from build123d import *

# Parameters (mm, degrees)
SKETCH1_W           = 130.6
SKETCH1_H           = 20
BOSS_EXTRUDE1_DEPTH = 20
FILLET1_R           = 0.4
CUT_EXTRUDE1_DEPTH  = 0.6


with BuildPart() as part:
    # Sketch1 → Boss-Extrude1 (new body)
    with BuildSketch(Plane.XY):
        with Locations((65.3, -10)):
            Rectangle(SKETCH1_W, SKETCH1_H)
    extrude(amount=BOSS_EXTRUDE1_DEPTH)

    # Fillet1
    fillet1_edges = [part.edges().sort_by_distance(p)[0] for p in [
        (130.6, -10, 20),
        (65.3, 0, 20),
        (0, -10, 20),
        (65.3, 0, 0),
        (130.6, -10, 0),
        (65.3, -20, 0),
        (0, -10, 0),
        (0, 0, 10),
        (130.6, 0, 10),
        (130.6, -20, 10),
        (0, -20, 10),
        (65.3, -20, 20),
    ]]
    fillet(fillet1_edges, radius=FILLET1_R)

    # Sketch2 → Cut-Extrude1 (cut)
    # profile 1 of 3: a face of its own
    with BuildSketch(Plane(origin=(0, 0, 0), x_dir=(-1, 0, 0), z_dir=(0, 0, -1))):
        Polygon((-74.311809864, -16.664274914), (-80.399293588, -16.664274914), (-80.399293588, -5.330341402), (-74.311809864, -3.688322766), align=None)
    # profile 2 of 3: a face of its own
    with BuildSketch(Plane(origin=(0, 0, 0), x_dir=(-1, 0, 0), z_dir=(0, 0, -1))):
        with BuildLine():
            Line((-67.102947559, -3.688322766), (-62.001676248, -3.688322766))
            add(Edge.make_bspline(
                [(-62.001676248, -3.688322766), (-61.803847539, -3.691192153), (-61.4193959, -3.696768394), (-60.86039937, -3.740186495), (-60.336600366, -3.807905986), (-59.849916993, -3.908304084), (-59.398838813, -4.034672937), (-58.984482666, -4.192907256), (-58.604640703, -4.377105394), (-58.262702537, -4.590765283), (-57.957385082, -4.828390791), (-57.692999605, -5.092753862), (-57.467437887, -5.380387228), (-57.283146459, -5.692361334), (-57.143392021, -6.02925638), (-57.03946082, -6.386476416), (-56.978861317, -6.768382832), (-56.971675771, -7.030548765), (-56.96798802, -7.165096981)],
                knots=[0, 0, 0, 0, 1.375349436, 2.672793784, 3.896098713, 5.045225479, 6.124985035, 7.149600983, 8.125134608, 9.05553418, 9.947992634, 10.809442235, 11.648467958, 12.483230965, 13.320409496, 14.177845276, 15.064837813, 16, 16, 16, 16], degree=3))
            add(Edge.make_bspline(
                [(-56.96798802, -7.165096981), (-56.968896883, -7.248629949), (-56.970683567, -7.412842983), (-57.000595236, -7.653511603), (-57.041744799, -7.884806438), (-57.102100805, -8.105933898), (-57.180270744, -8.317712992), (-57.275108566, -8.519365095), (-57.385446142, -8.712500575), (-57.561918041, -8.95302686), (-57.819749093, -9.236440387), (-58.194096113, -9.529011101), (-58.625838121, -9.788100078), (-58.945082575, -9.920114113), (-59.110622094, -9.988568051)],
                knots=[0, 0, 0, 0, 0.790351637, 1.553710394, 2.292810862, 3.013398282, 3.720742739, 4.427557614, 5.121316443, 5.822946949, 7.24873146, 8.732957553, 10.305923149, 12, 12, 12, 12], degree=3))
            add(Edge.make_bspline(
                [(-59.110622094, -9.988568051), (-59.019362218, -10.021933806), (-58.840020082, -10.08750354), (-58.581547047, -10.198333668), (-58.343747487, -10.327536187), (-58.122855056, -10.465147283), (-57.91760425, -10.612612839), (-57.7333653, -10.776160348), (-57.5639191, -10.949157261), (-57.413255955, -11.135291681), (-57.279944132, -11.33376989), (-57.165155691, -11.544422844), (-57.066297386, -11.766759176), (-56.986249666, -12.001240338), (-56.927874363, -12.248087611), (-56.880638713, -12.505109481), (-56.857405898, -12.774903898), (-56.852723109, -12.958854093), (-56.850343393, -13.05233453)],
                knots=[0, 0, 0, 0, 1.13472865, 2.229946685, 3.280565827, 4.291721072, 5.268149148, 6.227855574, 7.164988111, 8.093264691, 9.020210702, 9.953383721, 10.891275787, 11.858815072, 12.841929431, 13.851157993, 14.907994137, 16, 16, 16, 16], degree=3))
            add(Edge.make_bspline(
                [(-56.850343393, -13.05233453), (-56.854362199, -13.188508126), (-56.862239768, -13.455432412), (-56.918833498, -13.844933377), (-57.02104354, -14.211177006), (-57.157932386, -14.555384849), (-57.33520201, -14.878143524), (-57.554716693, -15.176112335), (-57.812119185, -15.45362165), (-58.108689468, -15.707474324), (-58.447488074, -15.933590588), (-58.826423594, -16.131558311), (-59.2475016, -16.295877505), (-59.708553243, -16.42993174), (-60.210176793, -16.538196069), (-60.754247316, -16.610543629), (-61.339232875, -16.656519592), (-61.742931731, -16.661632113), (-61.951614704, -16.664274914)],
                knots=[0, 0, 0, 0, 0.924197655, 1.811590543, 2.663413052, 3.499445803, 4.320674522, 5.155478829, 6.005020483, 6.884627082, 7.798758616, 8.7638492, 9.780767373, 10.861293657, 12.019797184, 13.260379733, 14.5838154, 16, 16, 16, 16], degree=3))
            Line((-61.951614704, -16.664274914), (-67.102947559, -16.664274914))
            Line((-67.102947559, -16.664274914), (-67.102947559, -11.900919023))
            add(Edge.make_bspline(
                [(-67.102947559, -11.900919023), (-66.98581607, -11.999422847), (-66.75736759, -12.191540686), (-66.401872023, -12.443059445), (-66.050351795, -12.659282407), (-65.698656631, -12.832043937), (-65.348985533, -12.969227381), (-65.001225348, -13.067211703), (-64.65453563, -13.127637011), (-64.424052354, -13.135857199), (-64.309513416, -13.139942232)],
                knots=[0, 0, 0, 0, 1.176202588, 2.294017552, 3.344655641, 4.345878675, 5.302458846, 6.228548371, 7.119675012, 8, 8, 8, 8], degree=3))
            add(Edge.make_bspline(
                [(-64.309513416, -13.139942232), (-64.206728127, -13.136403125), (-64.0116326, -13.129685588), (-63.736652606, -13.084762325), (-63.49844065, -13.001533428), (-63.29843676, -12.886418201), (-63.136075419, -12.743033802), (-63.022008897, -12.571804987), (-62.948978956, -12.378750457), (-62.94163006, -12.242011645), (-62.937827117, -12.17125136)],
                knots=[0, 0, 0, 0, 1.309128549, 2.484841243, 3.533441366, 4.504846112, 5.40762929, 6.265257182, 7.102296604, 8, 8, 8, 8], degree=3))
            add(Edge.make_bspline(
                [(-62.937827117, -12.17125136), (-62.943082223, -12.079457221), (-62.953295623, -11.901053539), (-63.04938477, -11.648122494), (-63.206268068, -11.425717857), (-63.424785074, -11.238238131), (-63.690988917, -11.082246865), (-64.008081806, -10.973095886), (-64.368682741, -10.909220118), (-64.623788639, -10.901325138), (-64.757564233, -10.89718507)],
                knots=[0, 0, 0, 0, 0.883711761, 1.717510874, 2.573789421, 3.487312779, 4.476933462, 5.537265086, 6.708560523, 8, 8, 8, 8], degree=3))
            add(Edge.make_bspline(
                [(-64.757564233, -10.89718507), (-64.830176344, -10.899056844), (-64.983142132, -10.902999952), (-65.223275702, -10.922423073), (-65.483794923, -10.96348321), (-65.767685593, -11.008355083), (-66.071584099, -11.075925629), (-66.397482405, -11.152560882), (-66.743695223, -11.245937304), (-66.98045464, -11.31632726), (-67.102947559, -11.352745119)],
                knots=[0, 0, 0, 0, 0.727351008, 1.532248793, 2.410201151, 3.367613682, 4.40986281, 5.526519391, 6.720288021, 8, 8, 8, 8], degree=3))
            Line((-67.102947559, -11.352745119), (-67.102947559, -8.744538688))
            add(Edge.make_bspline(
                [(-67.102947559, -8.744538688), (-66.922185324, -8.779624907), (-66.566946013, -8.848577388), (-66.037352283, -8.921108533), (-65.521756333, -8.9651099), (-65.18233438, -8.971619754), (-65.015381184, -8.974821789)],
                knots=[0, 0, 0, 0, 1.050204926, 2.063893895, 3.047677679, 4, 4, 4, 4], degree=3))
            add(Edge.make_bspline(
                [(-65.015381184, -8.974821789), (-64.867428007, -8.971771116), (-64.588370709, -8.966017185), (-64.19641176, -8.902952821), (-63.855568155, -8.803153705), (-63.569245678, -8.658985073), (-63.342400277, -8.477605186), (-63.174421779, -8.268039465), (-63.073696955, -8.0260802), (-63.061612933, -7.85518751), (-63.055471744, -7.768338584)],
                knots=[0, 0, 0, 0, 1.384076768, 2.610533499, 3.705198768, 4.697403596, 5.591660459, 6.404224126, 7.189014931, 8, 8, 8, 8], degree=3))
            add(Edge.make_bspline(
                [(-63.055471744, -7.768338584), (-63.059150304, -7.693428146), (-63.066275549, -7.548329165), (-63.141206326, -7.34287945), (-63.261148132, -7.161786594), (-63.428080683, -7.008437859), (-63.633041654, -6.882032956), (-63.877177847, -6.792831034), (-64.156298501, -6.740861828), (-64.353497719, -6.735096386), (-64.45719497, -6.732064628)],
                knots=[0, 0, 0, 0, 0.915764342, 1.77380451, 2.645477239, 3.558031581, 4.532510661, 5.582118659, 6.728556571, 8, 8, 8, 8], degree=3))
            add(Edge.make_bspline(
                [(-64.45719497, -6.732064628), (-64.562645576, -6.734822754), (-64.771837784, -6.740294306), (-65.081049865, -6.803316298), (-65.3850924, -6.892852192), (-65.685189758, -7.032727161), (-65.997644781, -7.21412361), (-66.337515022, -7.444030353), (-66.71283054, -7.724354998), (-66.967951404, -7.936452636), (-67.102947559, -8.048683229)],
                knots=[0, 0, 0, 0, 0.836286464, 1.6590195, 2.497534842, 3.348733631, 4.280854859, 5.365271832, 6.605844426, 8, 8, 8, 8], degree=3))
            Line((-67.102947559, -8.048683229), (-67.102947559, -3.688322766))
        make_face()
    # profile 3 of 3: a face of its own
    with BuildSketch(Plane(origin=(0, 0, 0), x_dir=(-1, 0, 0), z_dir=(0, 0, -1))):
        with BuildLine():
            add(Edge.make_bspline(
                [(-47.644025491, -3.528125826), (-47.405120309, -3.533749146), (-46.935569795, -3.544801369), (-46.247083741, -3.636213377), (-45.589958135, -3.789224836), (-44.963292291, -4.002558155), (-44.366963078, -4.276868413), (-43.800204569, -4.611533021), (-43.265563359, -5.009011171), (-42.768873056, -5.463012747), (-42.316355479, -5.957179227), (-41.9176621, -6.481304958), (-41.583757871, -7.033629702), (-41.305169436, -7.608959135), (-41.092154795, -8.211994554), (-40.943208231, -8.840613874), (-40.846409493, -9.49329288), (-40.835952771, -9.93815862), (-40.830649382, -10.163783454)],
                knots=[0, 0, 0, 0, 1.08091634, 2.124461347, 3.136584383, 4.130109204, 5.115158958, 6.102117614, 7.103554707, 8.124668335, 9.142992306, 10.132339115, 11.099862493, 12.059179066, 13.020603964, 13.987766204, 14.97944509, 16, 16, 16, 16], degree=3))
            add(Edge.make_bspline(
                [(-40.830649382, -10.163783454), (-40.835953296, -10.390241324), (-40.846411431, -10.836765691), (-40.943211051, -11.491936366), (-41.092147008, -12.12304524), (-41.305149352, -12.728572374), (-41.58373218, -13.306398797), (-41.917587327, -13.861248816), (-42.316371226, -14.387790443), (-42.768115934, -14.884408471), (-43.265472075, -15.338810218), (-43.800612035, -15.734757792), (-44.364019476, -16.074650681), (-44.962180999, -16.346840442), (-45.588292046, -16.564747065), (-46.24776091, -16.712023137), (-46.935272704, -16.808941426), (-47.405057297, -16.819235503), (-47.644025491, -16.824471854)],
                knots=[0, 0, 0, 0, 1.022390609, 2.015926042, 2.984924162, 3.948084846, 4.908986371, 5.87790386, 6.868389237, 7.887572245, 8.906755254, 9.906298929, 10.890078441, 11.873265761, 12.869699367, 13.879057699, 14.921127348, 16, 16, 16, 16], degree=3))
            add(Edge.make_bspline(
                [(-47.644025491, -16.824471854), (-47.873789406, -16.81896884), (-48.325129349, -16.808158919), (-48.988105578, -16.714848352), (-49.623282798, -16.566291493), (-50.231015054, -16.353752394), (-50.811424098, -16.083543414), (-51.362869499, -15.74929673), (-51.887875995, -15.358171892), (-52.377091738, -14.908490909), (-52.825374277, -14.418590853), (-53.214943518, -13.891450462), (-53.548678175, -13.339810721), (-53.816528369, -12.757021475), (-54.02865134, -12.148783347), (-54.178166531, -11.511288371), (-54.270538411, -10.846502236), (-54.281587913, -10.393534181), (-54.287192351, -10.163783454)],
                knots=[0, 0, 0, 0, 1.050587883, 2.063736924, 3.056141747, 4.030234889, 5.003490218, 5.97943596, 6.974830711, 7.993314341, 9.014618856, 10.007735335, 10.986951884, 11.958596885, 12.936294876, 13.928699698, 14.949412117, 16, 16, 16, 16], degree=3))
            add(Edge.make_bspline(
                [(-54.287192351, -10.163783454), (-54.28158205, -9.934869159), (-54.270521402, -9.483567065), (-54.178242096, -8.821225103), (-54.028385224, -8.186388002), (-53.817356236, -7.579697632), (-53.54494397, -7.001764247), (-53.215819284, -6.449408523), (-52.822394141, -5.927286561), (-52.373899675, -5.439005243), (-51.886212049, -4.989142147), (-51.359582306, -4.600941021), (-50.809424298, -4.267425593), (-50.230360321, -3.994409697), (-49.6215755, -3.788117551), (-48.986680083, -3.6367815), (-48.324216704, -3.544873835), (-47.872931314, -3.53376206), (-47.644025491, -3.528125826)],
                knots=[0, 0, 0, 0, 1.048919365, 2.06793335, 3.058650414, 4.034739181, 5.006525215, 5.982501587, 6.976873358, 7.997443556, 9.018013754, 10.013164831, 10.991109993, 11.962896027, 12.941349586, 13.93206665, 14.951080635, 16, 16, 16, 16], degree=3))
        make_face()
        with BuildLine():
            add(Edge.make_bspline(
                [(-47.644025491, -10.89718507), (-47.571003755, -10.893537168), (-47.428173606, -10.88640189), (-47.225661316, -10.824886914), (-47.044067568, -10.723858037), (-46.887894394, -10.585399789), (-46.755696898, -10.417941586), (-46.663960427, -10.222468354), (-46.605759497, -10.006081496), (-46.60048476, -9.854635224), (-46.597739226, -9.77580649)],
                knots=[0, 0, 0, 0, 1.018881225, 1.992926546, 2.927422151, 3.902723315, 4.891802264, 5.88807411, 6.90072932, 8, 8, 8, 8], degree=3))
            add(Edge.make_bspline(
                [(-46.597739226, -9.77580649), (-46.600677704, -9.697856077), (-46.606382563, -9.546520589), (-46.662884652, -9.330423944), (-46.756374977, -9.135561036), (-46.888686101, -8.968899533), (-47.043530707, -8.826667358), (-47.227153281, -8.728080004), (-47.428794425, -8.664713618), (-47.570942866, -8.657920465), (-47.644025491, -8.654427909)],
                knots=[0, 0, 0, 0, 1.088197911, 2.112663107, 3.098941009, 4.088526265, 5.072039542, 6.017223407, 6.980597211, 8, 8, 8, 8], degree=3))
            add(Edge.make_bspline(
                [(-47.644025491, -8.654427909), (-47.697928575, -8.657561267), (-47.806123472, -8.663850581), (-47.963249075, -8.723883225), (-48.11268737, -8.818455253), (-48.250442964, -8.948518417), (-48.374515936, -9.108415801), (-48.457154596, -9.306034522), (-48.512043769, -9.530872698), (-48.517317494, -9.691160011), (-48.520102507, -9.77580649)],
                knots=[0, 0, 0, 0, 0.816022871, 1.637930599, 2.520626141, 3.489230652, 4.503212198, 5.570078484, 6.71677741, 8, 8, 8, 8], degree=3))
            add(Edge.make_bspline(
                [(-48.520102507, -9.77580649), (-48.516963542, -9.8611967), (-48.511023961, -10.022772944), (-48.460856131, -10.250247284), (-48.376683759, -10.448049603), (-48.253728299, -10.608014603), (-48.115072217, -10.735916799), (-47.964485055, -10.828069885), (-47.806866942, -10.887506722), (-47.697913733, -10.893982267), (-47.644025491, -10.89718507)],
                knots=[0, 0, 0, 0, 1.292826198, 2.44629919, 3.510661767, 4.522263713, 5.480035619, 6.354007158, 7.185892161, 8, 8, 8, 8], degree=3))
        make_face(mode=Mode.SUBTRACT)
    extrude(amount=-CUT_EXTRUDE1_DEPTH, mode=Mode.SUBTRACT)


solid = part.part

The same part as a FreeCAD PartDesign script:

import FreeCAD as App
import Part
import Sketcher
from FreeCAD import Vector
Q = App.Units.Quantity

doc = App.newDocument("Part")
params = doc.addObject("Spreadsheet::Sheet", "Params")
for row, (alias, value) in enumerate([
    ("sketch1_height", "20 mm"),
    ("sketch1_width", "130.6 mm"),
    ("pad1_length", "20 mm"),
    ("fillet_radius", "0.4 mm"),
    ("pocket1_length", "0.6 mm"),
], start=1):
    params.set(f"A{row}", alias)
    params.set(f"B{row}", "=" + value)
    params.setAlias(f"B{row}", alias)

body = doc.addObject("PartDesign::Body", "Body")

sketch1 = body.newObject("Sketcher::SketchObject", "Sketch")
sketch1.AttachmentSupport = (doc.getObject("XY_Plane"), [""])
sketch1.MapMode = "FlatFace"
sketch1.addGeometry(Part.LineSegment(Vector(0, 0, 0), Vector(0, -20, 0)), False)
sketch1.addGeometry(Part.LineSegment(Vector(0, -20, 0), Vector(131, -20, 0)), False)
sketch1.addGeometry(Part.LineSegment(Vector(131, -20, 0), Vector(131, 0, 0)), False)
sketch1.addGeometry(Part.LineSegment(Vector(131, 0, 0), Vector(0, 0, 0)), False)
sketch1.addConstraint(Sketcher.Constraint("Coincident", 0, 2, 1, 1))
sketch1.addConstraint(Sketcher.Constraint("Coincident", 1, 2, 2, 1))
sketch1.addConstraint(Sketcher.Constraint("Coincident", 2, 2, 3, 1))
sketch1.addConstraint(Sketcher.Constraint("Coincident", 3, 2, 0, 1))
sketch1.addConstraint(Sketcher.Constraint("Vertical", 0))
sketch1.addConstraint(Sketcher.Constraint("Horizontal", 1))
sketch1.addConstraint(Sketcher.Constraint("Vertical", 2))
sketch1.addConstraint(Sketcher.Constraint("Horizontal", 3))
sketch1.addConstraint(Sketcher.Constraint("Coincident", 3, 2, -1, 1))
sketch1.addConstraint(Sketcher.Constraint("DistanceY", 0, 2, 0, 1, Q("20 mm")))
sketch1.addConstraint(Sketcher.Constraint("DistanceX", 1, 1, 1, 2, Q("130.6 mm")))
sketch1.setExpression("Constraints[9]", "Params.sketch1_height")
sketch1.setExpression("Constraints[10]", "Params.sketch1_width")
pad1 = body.newObject("PartDesign::Pad", "Pad")
pad1.Profile = sketch1
pad1.setExpression("Length", "Params.pad1_length")
doc.recompute()

fillet = body.newObject("PartDesign::Fillet", "Fillet")
fillet.Base = (pad1, ["Edge1"])
fillet.UseAllEdges = True
fillet.setExpression("Radius", "Params.fillet_radius")

sketch2 = body.newObject("Sketcher::SketchObject", "Sketch001")
sketch2.AttachmentSupport = (doc.getObject("XY_Plane"), [""])
sketch2.MapMode = "FlatFace"
sketch2.addGeometry(Part.LineSegment(Vector(80.399294, -16.664275, 0), Vector(74.31181, -16.664275, 0)), False)
sketch2.addGeometry(Part.LineSegment(Vector(74.31181, -16.664275, 0), Vector(74.31181, -3.688323, 0)), False)
sketch2.addGeometry(Part.LineSegment(Vector(74.31181, -3.688323, 0), Vector(80.399294, -5.330341, 0)), False)
sketch2.addGeometry(Part.LineSegment(Vector(80.399294, -5.330341, 0), Vector(80.399294, -16.664275, 0)), False)
sketch2.addGeometry(Part.LineSegment(Vector(62.001676, -3.688323, 0), Vector(67.102948, -3.688323, 0)), False)
sketch2.addGeometry(Part.LineSegment(Vector(67.102948, -3.688323, 0), Vector(67.102948, -8.048683, 0)), False)
sketch2.addGeometry(Part.BSplineCurve([Vector(64.457195, -6.732065, 0), Vector(64.562646, -6.734823, 0), Vector(64.771838, -6.740294, 0), Vector(65.08105, -6.803316, 0), Vector(65.385092, -6.892852, 0), Vector(65.68519, -7.032727, 0), Vector(65.997645, -7.214124, 0), Vector(66.337515, -7.44403, 0), Vector(66.712831, -7.724355, 0), Vector(66.967951, -7.936453, 0), Vector(67.102948, -8.048683, 0)], [4, 1, 1, 1, 1, 1, 1, 1, 4], [0, 0.836286464, 1.6590195, 2.497534842, 3.348733631, 4.280854859, 5.365271832, 6.605844426, 8], False, 3, [1, 1, 1, 1, 1, 1, 1, 1, 1, 1, 1], False), False)
sketch2.addGeometry(Part.BSplineCurve([Vector(63.055472, -7.768339, 0), Vector(63.05915, -7.693428, 0), Vector(63.066276, -7.548329, 0), Vector(63.141206, -7.342879, 0), Vector(63.261148, -7.161787, 0), Vector(63.428081, -7.008438, 0), Vector(63.633042, -6.882033, 0), Vector(63.877178, -6.792831, 0), Vector(64.156299, -6.740862, 0), Vector(64.353498, -6.735096, 0), Vector(64.457195, -6.732065, 0)], [4, 1, 1, 1, 1, 1, 1, 1, 4], [0, 0.915764342, 1.77380451, 2.645477239, 3.558031581, 4.532510661, 5.582118659, 6.728556571, 8], False, 3, [1, 1, 1, 1, 1, 1, 1, 1, 1, 1, 1], False), False)
sketch2.addGeometry(Part.BSplineCurve([Vector(65.015381, -8.974822, 0), Vector(64.867428, -8.971771, 0), Vector(64.588371, -8.966017, 0), Vector(64.196412, -8.902953, 0), Vector(63.855568, -8.803154, 0), Vector(63.569246, -8.658985, 0), Vector(63.3424, -8.477605, 0), Vector(63.174422, -8.268039, 0), Vector(63.073697, -8.02608, 0), Vector(63.061613, -7.855188, 0), Vector(63.055472, -7.768339, 0)], [4, 1, 1, 1, 1, 1, 1, 1, 4], [0, 1.384076768, 2.610533499, 3.705198768, 4.697403596, 5.591660459, 6.404224126, 7.189014931, 8], False, 3, [1, 1, 1, 1, 1, 1, 1, 1, 1, 1, 1], False), False)
sketch2.addGeometry(Part.BSplineCurve([Vector(67.102948, -8.744539, 0), Vector(66.922185, -8.779625, 0), Vector(66.566946, -8.848577, 0), Vector(66.037352, -8.921109, 0), Vector(65.521756, -8.96511, 0), Vector(65.182334, -8.97162, 0), Vector(65.015381, -8.974822, 0)], [4, 1, 1, 1, 4], [0, 1.050204926, 2.063893895, 3.047677679, 4], False, 3, [1, 1, 1, 1, 1, 1, 1], False), False)
sketch2.addGeometry(Part.LineSegment(Vector(67.102948, -8.744539, 0), Vector(67.102948, -11.352745, 0)), False)
sketch2.addGeometry(Part.BSplineCurve([Vector(64.757564, -10.897185, 0), Vector(64.830176, -10.899057, 0), Vector(64.983142, -10.903, 0), Vector(65.223276, -10.922423, 0), Vector(65.483795, -10.963483, 0), Vector(65.767686, -11.008355, 0), Vector(66.071584, -11.075926, 0), Vector(66.397482, -11.152561, 0), Vector(66.743695, -11.245937, 0), Vector(66.980455, -11.316327, 0), Vector(67.102948, -11.352745, 0)], [4, 1, 1, 1, 1, 1, 1, 1, 4], [0, 0.727351008, 1.532248793, 2.410201151, 3.367613682, 4.40986281, 5.526519391, 6.720288021, 8], False, 3, [1, 1, 1, 1, 1, 1, 1, 1, 1, 1, 1], False), False)
sketch2.addGeometry(Part.BSplineCurve([Vector(62.937827, -12.171251, 0), Vector(62.943082, -12.079457, 0), Vector(62.953296, -11.901054, 0), Vector(63.049385, -11.648122, 0), Vector(63.206268, -11.425718, 0), Vector(63.424785, -11.238238, 0), Vector(63.690989, -11.082247, 0), Vector(64.008082, -10.973096, 0), Vector(64.368683, -10.90922, 0), Vector(64.623789, -10.901325, 0), Vector(64.757564, -10.897185, 0)], [4, 1, 1, 1, 1, 1, 1, 1, 4], [0, 0.883711761, 1.717510874, 2.573789421, 3.487312779, 4.476933462, 5.537265086, 6.708560523, 8], False, 3, [1, 1, 1, 1, 1, 1, 1, 1, 1, 1, 1], False), False)
sketch2.addGeometry(Part.BSplineCurve([Vector(64.309513, -13.139942, 0), Vector(64.206728, -13.136403, 0), Vector(64.011633, -13.129686, 0), Vector(63.736653, -13.084762, 0), Vector(63.498441, -13.001533, 0), Vector(63.298437, -12.886418, 0), Vector(63.136075, -12.743034, 0), Vector(63.022009, -12.571805, 0), Vector(62.948979, -12.37875, 0), Vector(62.94163, -12.242012, 0), Vector(62.937827, -12.171251, 0)], [4, 1, 1, 1, 1, 1, 1, 1, 4], [0, 1.309128549, 2.484841243, 3.533441366, 4.504846112, 5.40762929, 6.265257182, 7.102296604, 8], False, 3, [1, 1, 1, 1, 1, 1, 1, 1, 1, 1, 1], False), False)
sketch2.addGeometry(Part.BSplineCurve([Vector(67.102948, -11.900919, 0), Vector(66.985816, -11.999423, 0), Vector(66.757368, -12.191541, 0), Vector(66.401872, -12.443059, 0), Vector(66.050352, -12.659282, 0), Vector(65.698657, -12.832044, 0), Vector(65.348986, -12.969227, 0), Vector(65.001225, -13.067212, 0), Vector(64.654536, -13.127637, 0), Vector(64.424052, -13.135857, 0), Vector(64.309513, -13.139942, 0)], [4, 1, 1, 1, 1, 1, 1, 1, 4], [0, 1.176202588, 2.294017552, 3.344655641, 4.345878675, 5.302458846, 6.228548371, 7.119675012, 8], False, 3, [1, 1, 1, 1, 1, 1, 1, 1, 1, 1, 1], False), False)
sketch2.addGeometry(Part.LineSegment(Vector(67.102948, -11.900919, 0), Vector(67.102948, -16.664275, 0)), False)
sketch2.addGeometry(Part.LineSegment(Vector(67.102948, -16.664275, 0), Vector(61.951615, -16.664275, 0)), False)
sketch2.addGeometry(Part.BSplineCurve([Vector(56.850343, -13.052335, 0), Vector(56.854362, -13.188508, 0), Vector(56.86224, -13.455432, 0), Vector(56.918833, -13.844933, 0), Vector(57.021044, -14.211177, 0), Vector(57.157932, -14.555385, 0), Vector(57.335202, -14.878144, 0), Vector(57.554717, -15.176112, 0), Vector(57.812119, -15.453622, 0), Vector(58.108689, -15.707474, 0), Vector(58.447488, -15.933591, 0), Vector(58.826424, -16.131558, 0), Vector(59.247502, -16.295878, 0), Vector(59.708553, -16.429932, 0), Vector(60.210177, -16.538196, 0), Vector(60.754247, -16.610544, 0), Vector(61.339233, -16.65652, 0), Vector(61.742932, -16.661632, 0), Vector(61.951615, -16.664275, 0)], [4, 1, 1, 1, 1, 1, 1, 1, 1, 1, 1, 1, 1, 1, 1, 1, 4], [0, 0.924197655, 1.811590543, 2.663413052, 3.499445803, 4.320674522, 5.155478829, 6.005020483, 6.884627082, 7.798758616, 8.7638492, 9.780767373, 10.861293657, 12.019797184, 13.260379733, 14.5838154, 16], False, 3, [1, 1, 1, 1, 1, 1, 1, 1, 1, 1, 1, 1, 1, 1, 1, 1, 1, 1, 1], False), False)
sketch2.addGeometry(Part.BSplineCurve([Vector(59.110622, -9.988568, 0), Vector(59.019362, -10.021934, 0), Vector(58.84002, -10.087504, 0), Vector(58.581547, -10.198334, 0), Vector(58.343747, -10.327536, 0), Vector(58.122855, -10.465147, 0), Vector(57.917604, -10.612613, 0), Vector(57.733365, -10.77616, 0), Vector(57.563919, -10.949157, 0), Vector(57.413256, -11.135292, 0), Vector(57.279944, -11.33377, 0), Vector(57.165156, -11.544423, 0), Vector(57.066297, -11.766759, 0), Vector(56.98625, -12.00124, 0), Vector(56.927874, -12.248088, 0), Vector(56.880639, -12.505109, 0), Vector(56.857406, -12.774904, 0), Vector(56.852723, -12.958854, 0), Vector(56.850343, -13.052335, 0)], [4, 1, 1, 1, 1, 1, 1, 1, 1, 1, 1, 1, 1, 1, 1, 1, 4], [0, 1.13472865, 2.229946685, 3.280565827, 4.291721072, 5.268149148, 6.227855574, 7.164988111, 8.093264691, 9.020210702, 9.953383721, 10.891275787, 11.858815072, 12.841929431, 13.851157993, 14.907994137, 16], False, 3, [1, 1, 1, 1, 1, 1, 1, 1, 1, 1, 1, 1, 1, 1, 1, 1, 1, 1, 1], False), False)
sketch2.addGeometry(Part.BSplineCurve([Vector(56.967988, -7.165097, 0), Vector(56.968897, -7.24863, 0), Vector(56.970684, -7.412843, 0), Vector(57.000595, -7.653512, 0), Vector(57.041745, -7.884806, 0), Vector(57.102101, -8.105934, 0), Vector(57.180271, -8.317713, 0), Vector(57.275109, -8.519365, 0), Vector(57.385446, -8.712501, 0), Vector(57.561918, -8.953027, 0), Vector(57.819749, -9.23644, 0), Vector(58.194096, -9.529011, 0), Vector(58.625838, -9.7881, 0), Vector(58.945083, -9.920114, 0), Vector(59.110622, -9.988568, 0)], [4, 1, 1, 1, 1, 1, 1, 1, 1, 1, 1, 1, 4], [0, 0.790351637, 1.553710394, 2.292810862, 3.013398282, 3.720742739, 4.427557614, 5.121316443, 5.822946949, 7.24873146, 8.732957553, 10.305923149, 12], False, 3, [1, 1, 1, 1, 1, 1, 1, 1, 1, 1, 1, 1, 1, 1, 1], False), False)
sketch2.addGeometry(Part.BSplineCurve([Vector(62.001676, -3.688323, 0), Vector(61.803848, -3.691192, 0), Vector(61.419396, -3.696768, 0), Vector(60.860399, -3.740186, 0), Vector(60.3366, -3.807906, 0), Vector(59.849917, -3.908304, 0), Vector(59.398839, -4.034673, 0), Vector(58.984483, -4.192907, 0), Vector(58.604641, -4.377105, 0), Vector(58.262703, -4.590765, 0), Vector(57.957385, -4.828391, 0), Vector(57.693, -5.092754, 0), Vector(57.467438, -5.380387, 0), Vector(57.283146, -5.692361, 0), Vector(57.143392, -6.029256, 0), Vector(57.039461, -6.386476, 0), Vector(56.978861, -6.768383, 0), Vector(56.971676, -7.030549, 0), Vector(56.967988, -7.165097, 0)], [4, 1, 1, 1, 1, 1, 1, 1, 1, 1, 1, 1, 1, 1, 1, 1, 4], [0, 1.375349436, 2.672793784, 3.896098713, 5.045225479, 6.124985035, 7.149600983, 8.125134608, 9.05553418, 9.947992634, 10.809442235, 11.648467958, 12.483230965, 13.320409496, 14.177845276, 15.064837813, 16], False, 3, [1, 1, 1, 1, 1, 1, 1, 1, 1, 1, 1, 1, 1, 1, 1, 1, 1, 1, 1], False), False)
sketch2.addGeometry(Part.BSplineCurve([Vector(47.644025, -3.528126, 0), Vector(47.40512, -3.533749, 0), Vector(46.93557, -3.544801, 0), Vector(46.247084, -3.636213, 0), Vector(45.589958, -3.789225, 0), Vector(44.963292, -4.002558, 0), Vector(44.366963, -4.276868, 0), Vector(43.800205, -4.611533, 0), Vector(43.265563, -5.009011, 0), Vector(42.768873, -5.463013, 0), Vector(42.316355, -5.957179, 0), Vector(41.917662, -6.481305, 0), Vector(41.583758, -7.03363, 0), Vector(41.305169, -7.608959, 0), Vector(41.092155, -8.211995, 0), Vector(40.943208, -8.840614, 0), Vector(40.846409, -9.493293, 0), Vector(40.835953, -9.938159, 0), Vector(40.830649, -10.163783, 0)], [4, 1, 1, 1, 1, 1, 1, 1, 1, 1, 1, 1, 1, 1, 1, 1, 4], [0, 1.08091634, 2.124461347, 3.136584383, 4.130109204, 5.115158958, 6.102117614, 7.103554707, 8.124668335, 9.142992306, 10.132339115, 11.099862493, 12.059179066, 13.020603964, 13.987766204, 14.97944509, 16], False, 3, [1, 1, 1, 1, 1, 1, 1, 1, 1, 1, 1, 1, 1, 1, 1, 1, 1, 1, 1], False), False)
sketch2.addGeometry(Part.BSplineCurve([Vector(54.287192, -10.163783, 0), Vector(54.281582, -9.934869, 0), Vector(54.270521, -9.483567, 0), Vector(54.178242, -8.821225, 0), Vector(54.028385, -8.186388, 0), Vector(53.817356, -7.579698, 0), Vector(53.544944, -7.001764, 0), Vector(53.215819, -6.449409, 0), Vector(52.822394, -5.927287, 0), Vector(52.3739, -5.439005, 0), Vector(51.886212, -4.989142, 0), Vector(51.359582, -4.600941, 0), Vector(50.809424, -4.267426, 0), Vector(50.23036, -3.99441, 0), Vector(49.621575, -3.788118, 0), Vector(48.98668, -3.636782, 0), Vector(48.324217, -3.544874, 0), Vector(47.872931, -3.533762, 0), Vector(47.644025, -3.528126, 0)], [4, 1, 1, 1, 1, 1, 1, 1, 1, 1, 1, 1, 1, 1, 1, 1, 4], [0, 1.048919365, 2.06793335, 3.058650414, 4.034739181, 5.006525215, 5.982501587, 6.976873358, 7.997443556, 9.018013754, 10.013164831, 10.991109993, 11.962896027, 12.941349586, 13.93206665, 14.951080635, 16], False, 3, [1, 1, 1, 1, 1, 1, 1, 1, 1, 1, 1, 1, 1, 1, 1, 1, 1, 1, 1], False), False)
sketch2.addGeometry(Part.BSplineCurve([Vector(47.644025, -16.824472, 0), Vector(47.873789, -16.818969, 0), Vector(48.325129, -16.808159, 0), Vector(48.988106, -16.714848, 0), Vector(49.623283, -16.566291, 0), Vector(50.231015, -16.353752, 0), Vector(50.811424, -16.083543, 0), Vector(51.362869, -15.749297, 0), Vector(51.887876, -15.358172, 0), Vector(52.377092, -14.908491, 0), Vector(52.825374, -14.418591, 0), Vector(53.214944, -13.89145, 0), Vector(53.548678, -13.339811, 0), Vector(53.816528, -12.757021, 0), Vector(54.028651, -12.148783, 0), Vector(54.178167, -11.511288, 0), Vector(54.270538, -10.846502, 0), Vector(54.281588, -10.393534, 0), Vector(54.287192, -10.163783, 0)], [4, 1, 1, 1, 1, 1, 1, 1, 1, 1, 1, 1, 1, 1, 1, 1, 4], [0, 1.050587883, 2.063736924, 3.056141747, 4.030234889, 5.003490218, 5.97943596, 6.974830711, 7.993314341, 9.014618856, 10.007735335, 10.986951884, 11.958596885, 12.936294876, 13.928699698, 14.949412117, 16], False, 3, [1, 1, 1, 1, 1, 1, 1, 1, 1, 1, 1, 1, 1, 1, 1, 1, 1, 1, 1], False), False)
sketch2.addGeometry(Part.BSplineCurve([Vector(40.830649, -10.163783, 0), Vector(40.835953, -10.390241, 0), Vector(40.846411, -10.836766, 0), Vector(40.943211, -11.491936, 0), Vector(41.092147, -12.123045, 0), Vector(41.305149, -12.728572, 0), Vector(41.583732, -13.306399, 0), Vector(41.917587, -13.861249, 0), Vector(42.316371, -14.38779, 0), Vector(42.768116, -14.884408, 0), Vector(43.265472, -15.33881, 0), Vector(43.800612, -15.734758, 0), Vector(44.364019, -16.074651, 0), Vector(44.962181, -16.34684, 0), Vector(45.588292, -16.564747, 0), Vector(46.247761, -16.712023, 0), Vector(46.935273, -16.808941, 0), Vector(47.405057, -16.819236, 0), Vector(47.644025, -16.824472, 0)], [4, 1, 1, 1, 1, 1, 1, 1, 1, 1, 1, 1, 1, 1, 1, 1, 4], [0, 1.022390609, 2.015926042, 2.984924162, 3.948084846, 4.908986371, 5.87790386, 6.868389237, 7.887572245, 8.906755254, 9.906298929, 10.890078441, 11.873265761, 12.869699367, 13.879057699, 14.921127348, 16], False, 3, [1, 1, 1, 1, 1, 1, 1, 1, 1, 1, 1, 1, 1, 1, 1, 1, 1, 1, 1], False), False)
sketch2.addGeometry(Part.BSplineCurve([Vector(48.520103, -9.775806, 0), Vector(48.516964, -9.861197, 0), Vector(48.511024, -10.022773, 0), Vector(48.460856, -10.250247, 0), Vector(48.376684, -10.44805, 0), Vector(48.253728, -10.608015, 0), Vector(48.115072, -10.735917, 0), Vector(47.964485, -10.82807, 0), Vector(47.806867, -10.887507, 0), Vector(47.697914, -10.893982, 0), Vector(47.644025, -10.897185, 0)], [4, 1, 1, 1, 1, 1, 1, 1, 4], [0, 1.292826198, 2.44629919, 3.510661767, 4.522263713, 5.480035619, 6.354007158, 7.185892161, 8], False, 3, [1, 1, 1, 1, 1, 1, 1, 1, 1, 1, 1], False), False)
sketch2.addGeometry(Part.BSplineCurve([Vector(47.644025, -8.654428, 0), Vector(47.697929, -8.657561, 0), Vector(47.806123, -8.663851, 0), Vector(47.963249, -8.723883, 0), Vector(48.112687, -8.818455, 0), Vector(48.250443, -8.948518, 0), Vector(48.374516, -9.108416, 0), Vector(48.457155, -9.306035, 0), Vector(48.512044, -9.530873, 0), Vector(48.517317, -9.69116, 0), Vector(48.520103, -9.775806, 0)], [4, 1, 1, 1, 1, 1, 1, 1, 4], [0, 0.816022871, 1.637930599, 2.520626141, 3.489230652, 4.503212198, 5.570078484, 6.71677741, 8], False, 3, [1, 1, 1, 1, 1, 1, 1, 1, 1, 1, 1], False), False)
sketch2.addGeometry(Part.BSplineCurve([Vector(46.597739, -9.775806, 0), Vector(46.600678, -9.697856, 0), Vector(46.606383, -9.546521, 0), Vector(46.662885, -9.330424, 0), Vector(46.756375, -9.135561, 0), Vector(46.888686, -8.9689, 0), Vector(47.043531, -8.826667, 0), Vector(47.227153, -8.72808, 0), Vector(47.428794, -8.664714, 0), Vector(47.570943, -8.65792, 0), Vector(47.644025, -8.654428, 0)], [4, 1, 1, 1, 1, 1, 1, 1, 4], [0, 1.088197911, 2.112663107, 3.098941009, 4.088526265, 5.072039542, 6.017223407, 6.980597211, 8], False, 3, [1, 1, 1, 1, 1, 1, 1, 1, 1, 1, 1], False), False)
sketch2.addGeometry(Part.BSplineCurve([Vector(47.644025, -10.897185, 0), Vector(47.571004, -10.893537, 0), Vector(47.428174, -10.886402, 0), Vector(47.225661, -10.824887, 0), Vector(47.044068, -10.723858, 0), Vector(46.887894, -10.5854, 0), Vector(46.755697, -10.417942, 0), Vector(46.66396, -10.222468, 0), Vector(46.605759, -10.006081, 0), Vector(46.600485, -9.854635, 0), Vector(46.597739, -9.775806, 0)], [4, 1, 1, 1, 1, 1, 1, 1, 4], [0, 1.018881225, 1.992926546, 2.927422151, 3.902723315, 4.891802264, 5.88807411, 6.90072932, 8], False, 3, [1, 1, 1, 1, 1, 1, 1, 1, 1, 1, 1], False), False)
sketch2.addConstraint(Sketcher.Constraint("Block", 6))
sketch2.addConstraint(Sketcher.Constraint("Block", 7))
sketch2.addConstraint(Sketcher.Constraint("Block", 8))
sketch2.addConstraint(Sketcher.Constraint("Block", 9))
sketch2.addConstraint(Sketcher.Constraint("Block", 11))
sketch2.addConstraint(Sketcher.Constraint("Block", 12))
sketch2.addConstraint(Sketcher.Constraint("Block", 13))
sketch2.addConstraint(Sketcher.Constraint("Block", 14))
sketch2.addConstraint(Sketcher.Constraint("Block", 17))
sketch2.addConstraint(Sketcher.Constraint("Block", 18))
sketch2.addConstraint(Sketcher.Constraint("Block", 19))
sketch2.addConstraint(Sketcher.Constraint("Block", 20))
sketch2.addConstraint(Sketcher.Constraint("Block", 21))
sketch2.addConstraint(Sketcher.Constraint("Block", 22))
sketch2.addConstraint(Sketcher.Constraint("Block", 23))
sketch2.addConstraint(Sketcher.Constraint("Block", 24))
sketch2.addConstraint(Sketcher.Constraint("Block", 25))
sketch2.addConstraint(Sketcher.Constraint("Block", 26))
sketch2.addConstraint(Sketcher.Constraint("Block", 27))
sketch2.addConstraint(Sketcher.Constraint("Block", 28))
sketch2.addConstraint(Sketcher.Constraint("Coincident", 0, 2, 1, 1))
sketch2.addConstraint(Sketcher.Constraint("Coincident", 1, 2, 2, 1))
sketch2.addConstraint(Sketcher.Constraint("Coincident", 2, 2, 3, 1))
sketch2.addConstraint(Sketcher.Constraint("Coincident", 3, 2, 0, 1))
sketch2.addConstraint(Sketcher.Constraint("Coincident", 4, 2, 5, 1))
sketch2.addConstraint(Sketcher.Constraint("Coincident", 5, 2, 6, 2))
sketch2.addConstraint(Sketcher.Constraint("Coincident", 9, 1, 10, 1))
sketch2.addConstraint(Sketcher.Constraint("Coincident", 10, 2, 11, 2))
sketch2.addConstraint(Sketcher.Constraint("Coincident", 14, 1, 15, 1))
sketch2.addConstraint(Sketcher.Constraint("Coincident", 15, 2, 16, 1))
sketch2.addConstraint(Sketcher.Constraint("Coincident", 16, 2, 17, 2))
sketch2.addConstraint(Sketcher.Constraint("Coincident", 20, 1, 4, 1))
sketch2.addConstraint(Sketcher.Constraint("Horizontal", 0))
sketch2.addConstraint(Sketcher.Constraint("Vertical", 1))
sketch2.addConstraint(Sketcher.Constraint("Vertical", 3))
sketch2.addConstraint(Sketcher.Constraint("Horizontal", 4))
sketch2.addConstraint(Sketcher.Constraint("Vertical", 5))
sketch2.addConstraint(Sketcher.Constraint("Vertical", 15))
sketch2.addConstraint(Sketcher.Constraint("Horizontal", 16))
sketch2.addConstraint(Sketcher.Constraint("Horizontal", 1, 2, 4, 2))
sketch2.addConstraint(Sketcher.Constraint("Horizontal", 3, 2, 15, 2))
sketch2.addConstraint(Sketcher.Constraint("DistanceX", 0, 2, 0, 1, Q("6.087484 mm")))
sketch2.addConstraint(Sketcher.Constraint("DistanceY", 3, 2, 3, 1, Q("11.333934 mm")))
sketch2.addConstraint(Sketcher.Constraint("DistanceX", -1, 1, 0, 2, Q("74.31181 mm")))
pocket1 = body.newObject("PartDesign::Pocket", "Pocket")
pocket1.Profile = sketch2
pocket1.setExpression("Length", "Params.pocket1_length")
pocket1.Reversed = True

doc.recompute()
